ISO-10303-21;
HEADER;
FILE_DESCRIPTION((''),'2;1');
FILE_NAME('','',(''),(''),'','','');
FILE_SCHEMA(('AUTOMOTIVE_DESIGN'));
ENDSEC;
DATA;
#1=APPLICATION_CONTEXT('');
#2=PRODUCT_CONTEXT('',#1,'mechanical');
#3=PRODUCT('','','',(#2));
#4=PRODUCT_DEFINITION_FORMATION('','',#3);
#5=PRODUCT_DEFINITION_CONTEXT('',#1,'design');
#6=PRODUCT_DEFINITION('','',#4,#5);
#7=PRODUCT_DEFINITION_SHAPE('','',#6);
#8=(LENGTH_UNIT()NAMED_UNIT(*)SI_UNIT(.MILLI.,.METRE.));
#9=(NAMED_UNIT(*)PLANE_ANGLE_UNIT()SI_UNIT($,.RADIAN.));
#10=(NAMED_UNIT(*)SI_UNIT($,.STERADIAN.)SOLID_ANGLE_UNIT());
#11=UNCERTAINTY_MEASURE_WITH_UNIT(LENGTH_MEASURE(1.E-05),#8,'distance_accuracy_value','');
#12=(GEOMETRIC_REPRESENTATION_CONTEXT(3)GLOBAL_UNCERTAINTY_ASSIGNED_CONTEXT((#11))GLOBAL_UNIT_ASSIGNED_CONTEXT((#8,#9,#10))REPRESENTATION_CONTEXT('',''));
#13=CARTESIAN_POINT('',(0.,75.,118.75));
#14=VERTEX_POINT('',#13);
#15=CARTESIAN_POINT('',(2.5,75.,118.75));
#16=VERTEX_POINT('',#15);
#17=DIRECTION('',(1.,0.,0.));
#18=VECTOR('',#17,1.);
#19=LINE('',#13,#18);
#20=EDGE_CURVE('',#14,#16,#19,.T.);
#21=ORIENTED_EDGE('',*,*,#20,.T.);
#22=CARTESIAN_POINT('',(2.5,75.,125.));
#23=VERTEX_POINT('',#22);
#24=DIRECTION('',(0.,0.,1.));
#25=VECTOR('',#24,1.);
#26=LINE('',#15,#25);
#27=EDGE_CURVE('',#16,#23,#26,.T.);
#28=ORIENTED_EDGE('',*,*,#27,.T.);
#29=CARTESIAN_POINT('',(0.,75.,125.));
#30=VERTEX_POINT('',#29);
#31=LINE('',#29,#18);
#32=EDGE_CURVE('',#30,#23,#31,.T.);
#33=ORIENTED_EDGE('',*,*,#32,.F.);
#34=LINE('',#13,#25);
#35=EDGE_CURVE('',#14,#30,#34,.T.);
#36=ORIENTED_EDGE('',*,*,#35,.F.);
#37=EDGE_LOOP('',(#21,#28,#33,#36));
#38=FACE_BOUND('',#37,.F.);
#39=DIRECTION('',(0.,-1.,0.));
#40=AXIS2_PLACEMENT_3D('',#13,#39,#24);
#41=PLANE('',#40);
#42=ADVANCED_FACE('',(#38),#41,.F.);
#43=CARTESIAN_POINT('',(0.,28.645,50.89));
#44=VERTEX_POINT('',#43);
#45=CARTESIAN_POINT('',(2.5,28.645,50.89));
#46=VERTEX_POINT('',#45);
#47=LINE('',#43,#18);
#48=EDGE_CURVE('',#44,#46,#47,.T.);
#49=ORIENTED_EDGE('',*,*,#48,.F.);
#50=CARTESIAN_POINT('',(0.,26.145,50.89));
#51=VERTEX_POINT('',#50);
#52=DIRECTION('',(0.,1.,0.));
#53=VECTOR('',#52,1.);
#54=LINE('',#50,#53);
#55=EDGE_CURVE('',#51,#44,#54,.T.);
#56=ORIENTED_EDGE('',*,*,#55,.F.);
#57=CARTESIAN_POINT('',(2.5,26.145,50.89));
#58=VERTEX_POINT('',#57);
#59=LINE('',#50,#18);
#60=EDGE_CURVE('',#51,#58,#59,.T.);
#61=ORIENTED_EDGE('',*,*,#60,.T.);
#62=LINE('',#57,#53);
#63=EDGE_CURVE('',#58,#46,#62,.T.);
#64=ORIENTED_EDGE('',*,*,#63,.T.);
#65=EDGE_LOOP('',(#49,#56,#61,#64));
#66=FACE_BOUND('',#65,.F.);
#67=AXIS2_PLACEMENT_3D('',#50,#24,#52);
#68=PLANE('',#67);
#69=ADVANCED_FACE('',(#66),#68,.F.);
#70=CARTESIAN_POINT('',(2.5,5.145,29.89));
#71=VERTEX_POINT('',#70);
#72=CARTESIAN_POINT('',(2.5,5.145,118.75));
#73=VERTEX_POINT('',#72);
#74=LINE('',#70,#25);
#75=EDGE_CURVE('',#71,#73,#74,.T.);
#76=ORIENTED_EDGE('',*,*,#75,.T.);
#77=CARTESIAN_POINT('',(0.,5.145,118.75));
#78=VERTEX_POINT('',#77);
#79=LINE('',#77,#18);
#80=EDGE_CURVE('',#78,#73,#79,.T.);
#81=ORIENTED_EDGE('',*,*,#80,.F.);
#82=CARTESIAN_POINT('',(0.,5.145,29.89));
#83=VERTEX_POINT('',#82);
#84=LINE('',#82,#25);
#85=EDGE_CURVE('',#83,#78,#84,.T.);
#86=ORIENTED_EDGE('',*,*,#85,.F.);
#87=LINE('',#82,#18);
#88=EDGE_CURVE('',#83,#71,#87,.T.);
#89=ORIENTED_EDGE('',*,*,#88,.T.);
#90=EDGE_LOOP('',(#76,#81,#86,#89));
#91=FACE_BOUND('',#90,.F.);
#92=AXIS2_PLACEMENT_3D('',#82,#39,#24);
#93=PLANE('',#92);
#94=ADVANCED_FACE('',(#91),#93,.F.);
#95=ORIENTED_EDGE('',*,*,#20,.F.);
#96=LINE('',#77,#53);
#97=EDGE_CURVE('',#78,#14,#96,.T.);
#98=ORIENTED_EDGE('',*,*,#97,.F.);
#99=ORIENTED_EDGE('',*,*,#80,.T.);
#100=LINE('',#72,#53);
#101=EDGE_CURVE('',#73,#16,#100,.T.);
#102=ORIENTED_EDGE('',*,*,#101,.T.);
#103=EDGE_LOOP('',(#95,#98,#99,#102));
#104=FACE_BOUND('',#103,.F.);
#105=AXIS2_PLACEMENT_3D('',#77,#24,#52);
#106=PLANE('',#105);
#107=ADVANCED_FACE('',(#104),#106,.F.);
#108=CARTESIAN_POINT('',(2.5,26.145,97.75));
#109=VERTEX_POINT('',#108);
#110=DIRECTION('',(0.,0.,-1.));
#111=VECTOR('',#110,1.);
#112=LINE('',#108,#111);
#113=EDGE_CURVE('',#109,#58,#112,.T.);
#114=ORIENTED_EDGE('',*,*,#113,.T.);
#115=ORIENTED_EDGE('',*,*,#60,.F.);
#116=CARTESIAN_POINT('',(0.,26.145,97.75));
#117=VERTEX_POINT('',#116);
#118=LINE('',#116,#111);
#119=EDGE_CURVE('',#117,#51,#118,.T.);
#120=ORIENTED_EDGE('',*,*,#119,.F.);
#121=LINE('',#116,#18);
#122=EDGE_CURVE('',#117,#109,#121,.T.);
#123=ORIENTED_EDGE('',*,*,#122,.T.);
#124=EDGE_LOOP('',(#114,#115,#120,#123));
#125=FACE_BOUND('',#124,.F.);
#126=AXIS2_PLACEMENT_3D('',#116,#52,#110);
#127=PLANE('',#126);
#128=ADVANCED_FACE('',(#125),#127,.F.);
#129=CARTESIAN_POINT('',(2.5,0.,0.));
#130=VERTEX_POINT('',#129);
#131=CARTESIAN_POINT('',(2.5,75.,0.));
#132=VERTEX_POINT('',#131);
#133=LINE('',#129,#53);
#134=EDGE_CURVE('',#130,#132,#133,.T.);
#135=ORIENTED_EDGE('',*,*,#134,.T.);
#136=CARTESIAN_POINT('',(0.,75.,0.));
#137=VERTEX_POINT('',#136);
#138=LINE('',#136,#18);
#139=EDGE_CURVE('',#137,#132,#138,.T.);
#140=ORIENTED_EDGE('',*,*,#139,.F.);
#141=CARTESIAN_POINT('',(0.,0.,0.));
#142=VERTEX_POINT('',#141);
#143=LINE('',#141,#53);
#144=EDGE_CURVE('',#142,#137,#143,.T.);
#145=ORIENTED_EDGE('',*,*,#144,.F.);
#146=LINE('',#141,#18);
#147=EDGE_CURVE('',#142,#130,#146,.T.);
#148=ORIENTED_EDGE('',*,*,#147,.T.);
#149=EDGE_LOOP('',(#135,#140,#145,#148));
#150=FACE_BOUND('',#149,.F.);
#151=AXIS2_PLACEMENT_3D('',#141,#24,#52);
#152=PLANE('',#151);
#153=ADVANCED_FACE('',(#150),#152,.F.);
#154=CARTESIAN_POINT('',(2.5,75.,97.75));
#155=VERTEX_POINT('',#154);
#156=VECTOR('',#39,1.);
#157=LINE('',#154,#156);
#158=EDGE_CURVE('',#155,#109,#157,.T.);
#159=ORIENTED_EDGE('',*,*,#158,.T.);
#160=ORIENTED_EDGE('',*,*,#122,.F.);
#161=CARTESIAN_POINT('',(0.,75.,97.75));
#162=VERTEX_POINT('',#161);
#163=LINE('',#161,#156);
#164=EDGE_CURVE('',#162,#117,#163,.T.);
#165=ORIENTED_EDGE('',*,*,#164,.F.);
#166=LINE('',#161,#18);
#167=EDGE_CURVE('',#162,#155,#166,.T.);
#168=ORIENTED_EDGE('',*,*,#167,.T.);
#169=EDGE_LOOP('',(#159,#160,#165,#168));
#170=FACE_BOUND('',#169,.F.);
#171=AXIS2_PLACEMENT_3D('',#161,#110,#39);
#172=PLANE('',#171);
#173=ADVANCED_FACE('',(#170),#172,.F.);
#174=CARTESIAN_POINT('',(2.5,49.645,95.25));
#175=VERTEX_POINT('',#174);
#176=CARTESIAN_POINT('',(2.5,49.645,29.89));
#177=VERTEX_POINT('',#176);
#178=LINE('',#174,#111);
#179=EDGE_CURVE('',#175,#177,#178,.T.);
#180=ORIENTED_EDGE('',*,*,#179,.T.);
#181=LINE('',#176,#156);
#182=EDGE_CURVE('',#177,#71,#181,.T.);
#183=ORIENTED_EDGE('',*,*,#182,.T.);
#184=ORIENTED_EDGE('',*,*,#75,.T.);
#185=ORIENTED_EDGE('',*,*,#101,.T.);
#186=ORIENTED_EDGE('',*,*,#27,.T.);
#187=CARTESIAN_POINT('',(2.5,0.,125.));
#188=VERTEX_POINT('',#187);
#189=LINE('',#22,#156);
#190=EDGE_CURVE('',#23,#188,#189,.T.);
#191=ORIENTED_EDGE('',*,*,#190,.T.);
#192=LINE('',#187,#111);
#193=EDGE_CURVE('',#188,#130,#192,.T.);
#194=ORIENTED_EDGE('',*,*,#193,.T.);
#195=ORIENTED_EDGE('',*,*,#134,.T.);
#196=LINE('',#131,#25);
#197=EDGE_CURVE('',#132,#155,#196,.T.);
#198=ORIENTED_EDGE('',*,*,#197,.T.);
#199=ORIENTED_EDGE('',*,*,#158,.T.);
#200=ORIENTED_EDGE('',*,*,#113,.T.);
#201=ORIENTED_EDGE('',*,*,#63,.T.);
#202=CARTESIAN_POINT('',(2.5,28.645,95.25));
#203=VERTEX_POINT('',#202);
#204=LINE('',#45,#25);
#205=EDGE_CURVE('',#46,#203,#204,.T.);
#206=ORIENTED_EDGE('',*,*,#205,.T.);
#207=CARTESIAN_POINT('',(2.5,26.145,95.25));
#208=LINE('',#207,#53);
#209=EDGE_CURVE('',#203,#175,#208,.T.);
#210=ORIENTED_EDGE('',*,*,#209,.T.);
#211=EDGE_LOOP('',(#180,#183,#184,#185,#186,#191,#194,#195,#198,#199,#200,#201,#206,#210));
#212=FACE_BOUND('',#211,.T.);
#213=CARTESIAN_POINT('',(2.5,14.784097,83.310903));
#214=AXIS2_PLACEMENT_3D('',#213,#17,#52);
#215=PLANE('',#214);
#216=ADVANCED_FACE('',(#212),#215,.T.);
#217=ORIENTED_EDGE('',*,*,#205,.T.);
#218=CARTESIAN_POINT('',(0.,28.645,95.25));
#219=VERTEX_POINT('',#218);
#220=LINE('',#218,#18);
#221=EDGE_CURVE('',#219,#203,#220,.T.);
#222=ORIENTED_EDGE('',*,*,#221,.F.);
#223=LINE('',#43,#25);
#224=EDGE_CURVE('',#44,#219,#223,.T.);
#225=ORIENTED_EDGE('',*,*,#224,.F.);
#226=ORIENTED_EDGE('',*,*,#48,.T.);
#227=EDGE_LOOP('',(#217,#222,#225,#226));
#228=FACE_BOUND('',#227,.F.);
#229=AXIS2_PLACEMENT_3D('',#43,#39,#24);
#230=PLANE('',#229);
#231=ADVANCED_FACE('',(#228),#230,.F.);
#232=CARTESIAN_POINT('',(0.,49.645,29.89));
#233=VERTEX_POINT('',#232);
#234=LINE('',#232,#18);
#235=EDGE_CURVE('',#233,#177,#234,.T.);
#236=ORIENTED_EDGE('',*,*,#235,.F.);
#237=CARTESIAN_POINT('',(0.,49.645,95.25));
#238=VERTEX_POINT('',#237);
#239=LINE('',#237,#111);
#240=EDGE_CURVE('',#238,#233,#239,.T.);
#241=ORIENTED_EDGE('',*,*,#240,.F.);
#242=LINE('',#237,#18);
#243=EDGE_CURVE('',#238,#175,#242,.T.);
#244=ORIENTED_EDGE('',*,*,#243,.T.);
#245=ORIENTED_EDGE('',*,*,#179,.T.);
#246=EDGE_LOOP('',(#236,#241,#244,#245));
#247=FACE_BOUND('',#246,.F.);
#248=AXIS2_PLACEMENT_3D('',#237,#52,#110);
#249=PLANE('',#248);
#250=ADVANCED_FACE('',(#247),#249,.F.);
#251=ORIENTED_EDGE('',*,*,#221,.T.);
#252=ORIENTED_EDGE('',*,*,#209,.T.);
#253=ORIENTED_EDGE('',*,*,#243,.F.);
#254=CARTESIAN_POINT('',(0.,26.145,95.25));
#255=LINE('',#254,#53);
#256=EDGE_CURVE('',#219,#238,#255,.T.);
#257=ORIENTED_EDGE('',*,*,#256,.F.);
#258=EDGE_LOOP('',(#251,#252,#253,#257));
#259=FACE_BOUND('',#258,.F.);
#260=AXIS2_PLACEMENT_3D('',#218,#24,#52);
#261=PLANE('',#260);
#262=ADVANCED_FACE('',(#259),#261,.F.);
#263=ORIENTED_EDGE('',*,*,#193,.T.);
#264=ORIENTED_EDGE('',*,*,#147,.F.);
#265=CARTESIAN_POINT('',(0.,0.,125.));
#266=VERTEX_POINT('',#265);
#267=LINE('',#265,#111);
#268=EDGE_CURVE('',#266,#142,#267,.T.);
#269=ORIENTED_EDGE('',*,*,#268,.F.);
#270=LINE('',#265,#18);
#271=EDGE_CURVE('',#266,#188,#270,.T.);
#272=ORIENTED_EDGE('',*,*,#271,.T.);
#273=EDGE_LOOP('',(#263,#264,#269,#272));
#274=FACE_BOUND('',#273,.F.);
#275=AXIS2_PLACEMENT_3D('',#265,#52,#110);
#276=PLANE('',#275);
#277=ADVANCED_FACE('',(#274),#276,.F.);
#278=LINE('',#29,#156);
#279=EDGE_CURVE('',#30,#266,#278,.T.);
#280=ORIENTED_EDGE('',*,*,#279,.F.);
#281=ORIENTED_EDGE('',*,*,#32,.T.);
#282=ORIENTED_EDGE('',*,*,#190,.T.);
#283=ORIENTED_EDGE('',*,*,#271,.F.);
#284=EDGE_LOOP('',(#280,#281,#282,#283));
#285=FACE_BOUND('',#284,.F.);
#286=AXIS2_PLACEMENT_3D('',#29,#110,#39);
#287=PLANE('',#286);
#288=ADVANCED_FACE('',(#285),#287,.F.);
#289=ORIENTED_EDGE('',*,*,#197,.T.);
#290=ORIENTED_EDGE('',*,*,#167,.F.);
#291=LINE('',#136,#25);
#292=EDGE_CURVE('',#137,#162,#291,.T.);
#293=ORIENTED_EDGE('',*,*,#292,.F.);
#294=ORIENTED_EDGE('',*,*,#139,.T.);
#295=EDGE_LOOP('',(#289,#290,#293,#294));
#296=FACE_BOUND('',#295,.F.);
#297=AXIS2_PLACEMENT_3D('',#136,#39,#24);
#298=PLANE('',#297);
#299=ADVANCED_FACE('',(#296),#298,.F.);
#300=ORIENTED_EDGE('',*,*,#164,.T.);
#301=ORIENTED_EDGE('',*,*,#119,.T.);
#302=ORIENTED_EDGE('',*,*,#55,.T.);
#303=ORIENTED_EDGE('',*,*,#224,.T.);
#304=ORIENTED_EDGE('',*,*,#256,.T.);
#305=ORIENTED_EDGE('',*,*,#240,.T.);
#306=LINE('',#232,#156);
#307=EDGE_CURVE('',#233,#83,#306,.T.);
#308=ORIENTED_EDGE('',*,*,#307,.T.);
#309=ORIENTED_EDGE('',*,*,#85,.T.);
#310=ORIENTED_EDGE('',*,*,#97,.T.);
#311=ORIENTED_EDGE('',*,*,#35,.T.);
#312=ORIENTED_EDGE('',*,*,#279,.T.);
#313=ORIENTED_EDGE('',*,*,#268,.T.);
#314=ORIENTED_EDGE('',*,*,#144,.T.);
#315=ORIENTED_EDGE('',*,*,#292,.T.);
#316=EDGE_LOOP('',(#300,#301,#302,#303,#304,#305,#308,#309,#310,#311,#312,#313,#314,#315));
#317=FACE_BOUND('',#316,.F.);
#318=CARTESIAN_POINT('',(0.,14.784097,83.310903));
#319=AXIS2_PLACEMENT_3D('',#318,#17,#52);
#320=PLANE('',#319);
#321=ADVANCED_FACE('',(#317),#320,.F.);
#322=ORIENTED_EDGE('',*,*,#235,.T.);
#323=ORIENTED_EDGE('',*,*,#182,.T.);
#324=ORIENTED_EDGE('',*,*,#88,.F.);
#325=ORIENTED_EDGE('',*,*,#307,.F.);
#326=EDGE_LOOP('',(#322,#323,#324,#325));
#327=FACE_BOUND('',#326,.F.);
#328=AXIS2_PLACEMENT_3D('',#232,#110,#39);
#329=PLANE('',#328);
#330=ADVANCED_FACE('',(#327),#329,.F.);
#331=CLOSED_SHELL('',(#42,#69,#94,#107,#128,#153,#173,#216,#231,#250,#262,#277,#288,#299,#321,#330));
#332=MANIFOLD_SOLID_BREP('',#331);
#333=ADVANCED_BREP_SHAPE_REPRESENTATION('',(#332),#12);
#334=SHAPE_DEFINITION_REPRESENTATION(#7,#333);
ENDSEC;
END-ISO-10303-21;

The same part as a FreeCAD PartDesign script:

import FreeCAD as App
import Part
import Sketcher
Q = App.Units.Quantity


def add_polygon(sketch, points):
    """Adds a closed chain of lines whose ends are joined by coincident constraints."""
    first, n = sketch.GeometryCount, len(points)
    for a, b in zip(points, points[1:] + points[:1]):
        sketch.addGeometry(Part.LineSegment(App.Vector(*a, 0), App.Vector(*b, 0)), False)
    for i in range(n):
        sketch.addConstraint(Sketcher.Constraint("Coincident", first + i, 2, first + (i + 1) % n, 1))

doc = App.newDocument("Part")
body = doc.addObject("PartDesign::Body", "Body")

sketch1 = body.newObject("Sketcher::SketchObject", "Sketch")
sketch1.AttachmentSupport = (doc.getObject("YZ_Plane"), [""])
sketch1.MapMode = "FlatFace"
add_polygon(sketch1, [(0, 125), (0, 0), (75, 0), (75, 97.8), (26.1, 97.8), (26.1, 50.9), (28.6, 50.9), (28.6, 95.2), (49.6, 95.2), (49.6, 29.9), (5.1, 29.9), (5.1, 118.8), (75, 118.8), (75, 125)])
sketch1.addConstraint(Sketcher.Constraint("Vertical", 0))
sketch1.addConstraint(Sketcher.Constraint("Horizontal", 1))
sketch1.addConstraint(Sketcher.Constraint("Vertical", 2))
sketch1.addConstraint(Sketcher.Constraint("Horizontal", 3))
sketch1.addConstraint(Sketcher.Constraint("Vertical", 4))
sketch1.addConstraint(Sketcher.Constraint("Horizontal", 5))
sketch1.addConstraint(Sketcher.Constraint("Vertical", 6))
sketch1.addConstraint(Sketcher.Constraint("Horizontal", 7))
sketch1.addConstraint(Sketcher.Constraint("Vertical", 8))
sketch1.addConstraint(Sketcher.Constraint("Horizontal", 9))
sketch1.addConstraint(Sketcher.Constraint("Vertical", 10))
sketch1.addConstraint(Sketcher.Constraint("Horizontal", 11))
sketch1.addConstraint(Sketcher.Constraint("Vertical", 12))
sketch1.addConstraint(Sketcher.Constraint("Horizontal", 13))
sketch1.addConstraint(Sketcher.Constraint("Coincident", 0, 2, -1, 1))
sketch1.addConstraint(Sketcher.Constraint("Vertical", 2, 2, 11, 2))
sketch1.addConstraint(Sketcher.Constraint("DistanceX", 1, 1, 1, 2, Q("75 mm")))
sketch1.addConstraint(Sketcher.Constraint("DistanceX", 7, 1, 7, 2, Q("21 mm")))
sketch1.addConstraint(Sketcher.Constraint("DistanceY", 0, 2, 0, 1, Q("125 mm")))
sketch1.addConstraint(Sketcher.Constraint("DistanceX", 5, 1, 5, 2, Q("2.5 mm")))
sketch1.addConstraint(Sketcher.Constraint("DistanceX", 9, 2, 9, 1, Q("44.5 mm")))
sketch1.addConstraint(Sketcher.Constraint("DistanceY", 8, 2, 5, 2, Q("21 mm")))
sketch1.addConstraint(Sketcher.Constraint("DistanceY", 3, 2, 10, 2, Q("21 mm")))
sketch1.addConstraint(Sketcher.Constraint("DistanceY", 2, 1, 2, 2, Q("97.75 mm")))
sketch1.addConstraint(Sketcher.Constraint("DistanceY", 4, 2, 4, 1, Q("46.86 mm")))
sketch1.addConstraint(Sketcher.Constraint("DistanceY", 6, 1, 6, 2, Q("44.36 mm")))
sketch1.addConstraint(Sketcher.Constraint("DistanceX", 3, 2, 3, 1, Q("48.855 mm")))
pad1 = body.newObject("PartDesign::Pad", "Pad")
pad1.Profile = sketch1
pad1.Length = 2.5

doc.recompute()
